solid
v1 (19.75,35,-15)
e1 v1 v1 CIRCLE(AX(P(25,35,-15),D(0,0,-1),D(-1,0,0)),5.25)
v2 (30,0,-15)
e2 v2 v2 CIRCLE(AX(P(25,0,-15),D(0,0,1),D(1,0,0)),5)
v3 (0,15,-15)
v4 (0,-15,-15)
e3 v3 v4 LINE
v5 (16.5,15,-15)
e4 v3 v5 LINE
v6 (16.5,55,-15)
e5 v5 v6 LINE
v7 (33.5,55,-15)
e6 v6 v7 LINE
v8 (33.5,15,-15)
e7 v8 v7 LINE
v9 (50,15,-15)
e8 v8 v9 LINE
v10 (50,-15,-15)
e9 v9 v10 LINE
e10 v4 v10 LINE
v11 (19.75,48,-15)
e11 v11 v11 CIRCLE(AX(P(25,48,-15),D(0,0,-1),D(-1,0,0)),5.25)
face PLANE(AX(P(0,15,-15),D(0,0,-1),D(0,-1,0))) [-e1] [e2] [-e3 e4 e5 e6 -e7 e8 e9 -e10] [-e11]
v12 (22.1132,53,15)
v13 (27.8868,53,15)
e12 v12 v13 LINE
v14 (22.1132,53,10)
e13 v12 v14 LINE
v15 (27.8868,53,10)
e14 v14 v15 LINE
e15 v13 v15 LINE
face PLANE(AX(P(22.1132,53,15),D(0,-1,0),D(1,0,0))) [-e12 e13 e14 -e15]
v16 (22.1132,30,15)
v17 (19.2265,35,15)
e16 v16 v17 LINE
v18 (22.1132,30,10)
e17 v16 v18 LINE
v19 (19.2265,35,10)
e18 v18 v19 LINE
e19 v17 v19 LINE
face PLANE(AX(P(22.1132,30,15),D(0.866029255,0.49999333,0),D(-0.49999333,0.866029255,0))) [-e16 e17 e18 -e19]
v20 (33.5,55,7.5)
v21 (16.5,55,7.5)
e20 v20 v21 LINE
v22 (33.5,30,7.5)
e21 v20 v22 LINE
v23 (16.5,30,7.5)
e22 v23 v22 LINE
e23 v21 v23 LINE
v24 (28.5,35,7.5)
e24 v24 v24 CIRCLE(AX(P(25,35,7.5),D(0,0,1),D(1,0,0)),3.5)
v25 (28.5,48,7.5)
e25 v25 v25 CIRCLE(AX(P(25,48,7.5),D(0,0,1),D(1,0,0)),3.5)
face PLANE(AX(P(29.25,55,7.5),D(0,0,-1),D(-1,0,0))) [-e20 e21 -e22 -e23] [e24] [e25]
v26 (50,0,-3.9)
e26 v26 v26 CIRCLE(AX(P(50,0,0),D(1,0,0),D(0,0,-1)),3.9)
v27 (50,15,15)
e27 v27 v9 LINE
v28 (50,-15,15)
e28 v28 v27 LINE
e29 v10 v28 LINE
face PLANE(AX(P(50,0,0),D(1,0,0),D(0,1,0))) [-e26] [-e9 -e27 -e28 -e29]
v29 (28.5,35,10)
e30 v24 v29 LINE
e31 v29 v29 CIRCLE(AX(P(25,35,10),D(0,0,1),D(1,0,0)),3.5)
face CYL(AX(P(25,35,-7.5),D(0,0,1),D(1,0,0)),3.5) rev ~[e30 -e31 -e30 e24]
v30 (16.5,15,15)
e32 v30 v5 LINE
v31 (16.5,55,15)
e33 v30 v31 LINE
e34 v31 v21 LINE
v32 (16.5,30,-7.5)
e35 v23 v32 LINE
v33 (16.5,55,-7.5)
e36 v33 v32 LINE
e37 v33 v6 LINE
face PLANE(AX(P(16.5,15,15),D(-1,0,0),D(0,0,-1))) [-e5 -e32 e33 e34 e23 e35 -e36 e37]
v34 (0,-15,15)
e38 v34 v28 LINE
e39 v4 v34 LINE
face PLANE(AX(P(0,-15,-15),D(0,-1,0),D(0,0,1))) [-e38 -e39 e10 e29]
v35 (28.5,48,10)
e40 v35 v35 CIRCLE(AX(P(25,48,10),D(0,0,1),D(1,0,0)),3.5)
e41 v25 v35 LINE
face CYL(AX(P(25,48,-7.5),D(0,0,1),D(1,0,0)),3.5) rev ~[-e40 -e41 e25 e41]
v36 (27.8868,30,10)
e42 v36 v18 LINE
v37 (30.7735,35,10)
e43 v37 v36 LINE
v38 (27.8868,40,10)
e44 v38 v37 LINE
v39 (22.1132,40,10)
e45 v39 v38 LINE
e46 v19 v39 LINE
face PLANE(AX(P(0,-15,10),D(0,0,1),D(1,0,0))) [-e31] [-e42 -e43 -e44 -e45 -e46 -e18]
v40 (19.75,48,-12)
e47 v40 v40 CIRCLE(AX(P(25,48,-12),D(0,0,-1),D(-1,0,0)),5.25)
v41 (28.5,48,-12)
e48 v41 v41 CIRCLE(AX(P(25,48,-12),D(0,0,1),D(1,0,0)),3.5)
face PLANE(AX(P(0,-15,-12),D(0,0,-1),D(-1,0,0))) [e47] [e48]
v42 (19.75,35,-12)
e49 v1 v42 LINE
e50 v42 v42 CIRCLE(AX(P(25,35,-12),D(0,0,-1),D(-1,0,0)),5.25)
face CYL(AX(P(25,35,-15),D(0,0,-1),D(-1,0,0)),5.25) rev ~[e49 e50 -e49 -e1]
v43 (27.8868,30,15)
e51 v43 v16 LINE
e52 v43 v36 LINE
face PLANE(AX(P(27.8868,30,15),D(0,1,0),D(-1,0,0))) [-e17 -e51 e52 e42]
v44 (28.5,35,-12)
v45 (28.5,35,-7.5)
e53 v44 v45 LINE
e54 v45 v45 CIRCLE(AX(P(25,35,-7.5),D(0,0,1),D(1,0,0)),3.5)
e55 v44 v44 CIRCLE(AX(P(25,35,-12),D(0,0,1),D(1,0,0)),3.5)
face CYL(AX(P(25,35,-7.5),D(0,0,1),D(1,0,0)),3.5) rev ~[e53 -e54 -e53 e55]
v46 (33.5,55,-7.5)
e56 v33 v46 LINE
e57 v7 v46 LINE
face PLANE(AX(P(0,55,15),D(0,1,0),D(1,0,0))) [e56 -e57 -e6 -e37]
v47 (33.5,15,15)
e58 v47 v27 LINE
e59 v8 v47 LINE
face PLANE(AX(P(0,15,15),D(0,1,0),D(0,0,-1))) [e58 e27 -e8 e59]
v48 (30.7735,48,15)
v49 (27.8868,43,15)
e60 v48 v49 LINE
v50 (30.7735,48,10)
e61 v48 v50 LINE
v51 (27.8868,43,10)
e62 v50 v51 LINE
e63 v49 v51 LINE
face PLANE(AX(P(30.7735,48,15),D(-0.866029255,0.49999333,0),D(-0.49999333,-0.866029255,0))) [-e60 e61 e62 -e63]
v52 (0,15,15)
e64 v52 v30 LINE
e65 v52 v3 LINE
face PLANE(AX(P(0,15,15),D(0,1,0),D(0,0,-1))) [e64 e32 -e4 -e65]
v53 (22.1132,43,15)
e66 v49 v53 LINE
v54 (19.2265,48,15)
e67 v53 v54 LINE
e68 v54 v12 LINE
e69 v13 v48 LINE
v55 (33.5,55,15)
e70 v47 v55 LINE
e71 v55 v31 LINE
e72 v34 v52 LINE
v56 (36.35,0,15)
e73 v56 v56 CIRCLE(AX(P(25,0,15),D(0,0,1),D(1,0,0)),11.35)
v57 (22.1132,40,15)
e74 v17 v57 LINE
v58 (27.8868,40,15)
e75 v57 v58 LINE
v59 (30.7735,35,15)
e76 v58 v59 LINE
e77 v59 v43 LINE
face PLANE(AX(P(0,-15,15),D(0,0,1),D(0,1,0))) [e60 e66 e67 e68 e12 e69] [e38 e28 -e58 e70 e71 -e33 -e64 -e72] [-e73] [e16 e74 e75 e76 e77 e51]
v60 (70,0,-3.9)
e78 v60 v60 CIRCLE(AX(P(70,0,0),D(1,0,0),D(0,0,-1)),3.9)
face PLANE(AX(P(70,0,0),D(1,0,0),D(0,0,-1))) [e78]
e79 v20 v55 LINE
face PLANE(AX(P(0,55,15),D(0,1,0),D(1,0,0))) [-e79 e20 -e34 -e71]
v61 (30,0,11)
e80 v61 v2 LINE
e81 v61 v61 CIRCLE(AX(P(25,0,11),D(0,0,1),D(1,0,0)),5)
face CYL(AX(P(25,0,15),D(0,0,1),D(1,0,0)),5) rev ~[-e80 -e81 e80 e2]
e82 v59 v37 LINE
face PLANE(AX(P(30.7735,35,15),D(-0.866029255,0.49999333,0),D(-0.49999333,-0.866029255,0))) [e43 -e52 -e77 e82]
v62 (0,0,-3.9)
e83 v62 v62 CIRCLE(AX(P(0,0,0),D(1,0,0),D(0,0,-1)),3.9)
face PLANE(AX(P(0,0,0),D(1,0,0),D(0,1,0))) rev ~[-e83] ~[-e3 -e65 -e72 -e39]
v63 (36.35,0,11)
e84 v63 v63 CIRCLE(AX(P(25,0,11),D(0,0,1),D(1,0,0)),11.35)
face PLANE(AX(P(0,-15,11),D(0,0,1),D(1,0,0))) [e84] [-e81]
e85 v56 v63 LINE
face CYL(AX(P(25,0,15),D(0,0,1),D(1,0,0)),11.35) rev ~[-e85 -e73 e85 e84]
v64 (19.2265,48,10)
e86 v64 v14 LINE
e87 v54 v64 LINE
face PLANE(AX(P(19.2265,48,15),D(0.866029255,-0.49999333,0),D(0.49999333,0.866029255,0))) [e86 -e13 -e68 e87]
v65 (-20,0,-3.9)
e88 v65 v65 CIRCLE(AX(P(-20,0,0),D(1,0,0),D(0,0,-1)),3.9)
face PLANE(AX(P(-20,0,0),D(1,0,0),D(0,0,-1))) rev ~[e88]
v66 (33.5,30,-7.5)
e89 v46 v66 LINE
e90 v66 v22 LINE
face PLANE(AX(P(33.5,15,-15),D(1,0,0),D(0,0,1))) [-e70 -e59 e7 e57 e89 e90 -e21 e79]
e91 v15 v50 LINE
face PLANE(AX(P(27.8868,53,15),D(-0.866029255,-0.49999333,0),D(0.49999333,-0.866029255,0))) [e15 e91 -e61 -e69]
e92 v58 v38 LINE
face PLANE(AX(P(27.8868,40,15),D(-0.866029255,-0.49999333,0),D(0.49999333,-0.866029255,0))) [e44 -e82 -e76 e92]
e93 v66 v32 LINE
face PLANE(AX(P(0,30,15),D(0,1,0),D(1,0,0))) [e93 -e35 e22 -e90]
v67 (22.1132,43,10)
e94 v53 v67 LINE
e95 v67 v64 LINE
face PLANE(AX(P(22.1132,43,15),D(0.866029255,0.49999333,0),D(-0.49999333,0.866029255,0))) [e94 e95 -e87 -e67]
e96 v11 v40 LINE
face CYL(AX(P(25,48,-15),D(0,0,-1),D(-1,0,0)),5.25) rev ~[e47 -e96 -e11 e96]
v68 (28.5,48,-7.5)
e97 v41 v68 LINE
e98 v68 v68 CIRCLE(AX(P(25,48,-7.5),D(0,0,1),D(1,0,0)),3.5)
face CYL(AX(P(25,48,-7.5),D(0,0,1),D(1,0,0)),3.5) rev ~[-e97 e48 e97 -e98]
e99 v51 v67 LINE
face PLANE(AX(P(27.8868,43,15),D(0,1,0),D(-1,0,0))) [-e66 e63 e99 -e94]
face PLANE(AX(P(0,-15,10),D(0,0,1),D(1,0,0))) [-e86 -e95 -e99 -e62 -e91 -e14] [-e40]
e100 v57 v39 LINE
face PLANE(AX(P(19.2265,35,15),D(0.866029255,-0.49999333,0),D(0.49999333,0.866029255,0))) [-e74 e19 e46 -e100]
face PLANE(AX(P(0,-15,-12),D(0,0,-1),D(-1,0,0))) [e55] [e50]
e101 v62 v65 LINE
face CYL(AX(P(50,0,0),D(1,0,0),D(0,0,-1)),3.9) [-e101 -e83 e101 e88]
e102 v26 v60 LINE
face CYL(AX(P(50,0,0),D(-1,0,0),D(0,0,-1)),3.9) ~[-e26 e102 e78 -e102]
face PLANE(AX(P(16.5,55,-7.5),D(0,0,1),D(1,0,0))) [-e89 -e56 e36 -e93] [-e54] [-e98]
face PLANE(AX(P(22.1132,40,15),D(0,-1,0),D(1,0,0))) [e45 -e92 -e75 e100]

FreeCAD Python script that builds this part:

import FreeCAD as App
import Part
import Sketcher

V = App.Vector
Q = App.Units.Quantity


def add_polygon(sketch, points):
    """Adds a closed chain of lines whose ends are joined by coincident constraints."""
    first, n = sketch.GeometryCount, len(points)
    for a, b in zip(points, points[1:] + points[:1]):
        sketch.addGeometry(Part.LineSegment(App.Vector(*a, 0), App.Vector(*b, 0)), False)
    for i in range(n):
        sketch.addConstraint(Sketcher.Constraint("Coincident", first + i, 2, first + (i + 1) % n, 1))

doc = App.newDocument("Part")
body = doc.addObject("PartDesign::Body", "Body")

# Sketch on YZ plane
sketch1 = body.newObject("Sketcher::SketchObject", "Sketch")
sketch1.AttachmentSupport = (doc.getObject("YZ_Plane"), [""])
sketch1.MapMode = "FlatFace"
add_polygon(sketch1, [(15, 15), (-15, 15), (-15, -15), (15, -15)])  # lines 0-3
sketch1.addConstraint([
    Sketcher.Constraint("Horizontal", 0),
    Sketcher.Constraint("Vertical", 1),
    Sketcher.Constraint("Horizontal", 2),
    Sketcher.Constraint("Vertical", 3),
    Sketcher.Constraint("Symmetric", 0, 2, 2, 2, -1, 1),
    Sketcher.Constraint("Equal", 2, 1),
    Sketcher.Constraint("DistanceX", 0, 2, 0, 1, Q("30 mm")),
])
pad1 = body.newObject("PartDesign::Pad", "Pad")
pad1.Profile = sketch1
pad1.Length = 50

# Sketch on YZ plane
sketch2 = body.newObject("Sketcher::SketchObject", "Sketch001")
sketch2.AttachmentSupport = (doc.getObject("YZ_Plane"), [""])
sketch2.MapMode = "FlatFace"
sketch2.AttachmentOffset = App.Placement(V(0, 0, 50), App.Rotation())
sketch2.addGeometry(Part.Circle(V(0, 0, 0), V(0, 0, 1), 3.9), False)
sketch2.addConstraint([
    Sketcher.Constraint("Coincident", 0, 3, -1, 1),
    Sketcher.Constraint("Diameter", 0, Q("7.8 mm")),
])
pad2 = body.newObject("PartDesign::Pad", "Pad001")
pad2.Profile = sketch2
pad2.Type = "TwoLengths"
pad2.Length = 20
pad2.Length2 = 70

# Sketch on XZ plane
sketch3 = body.newObject("Sketcher::SketchObject", "Sketch002")
sketch3.AttachmentSupport = (doc.getObject("XZ_Plane"), [""])
sketch3.MapMode = "FlatFace"
sketch3.AttachmentOffset = App.Placement(V(0, 0, -15), App.Rotation())
add_polygon(sketch3, [(34, -15), (16, -15), (16, 15), (34, 15)])  # lines 0-3
sketch3.addConstraint([
    Sketcher.Constraint("Horizontal", 0),
    Sketcher.Constraint("Vertical", 1),
    Sketcher.Constraint("Horizontal", 2),
    Sketcher.Constraint("Vertical", 3),
    Sketcher.Constraint("DistanceX", 0, 2, 0, 1, Q("17 mm")),
    Sketcher.Constraint("DistanceY", 1, 1, 1, 2, Q("30 mm")),
    Sketcher.Constraint("DistanceY", 0, 2, -1, 1, Q("15 mm")),
    Sketcher.Constraint("DistanceX", -1, 1, 0, 2, Q("16.5 mm")),
])
pad3 = body.newObject("PartDesign::Pad", "Pad002")
pad3.Profile = sketch3
pad3.Length = 40
pad3.Reversed = True

# Sketch on XY plane
sketch4 = body.newObject("Sketcher::SketchObject", "Sketch003")
sketch4.AttachmentSupport = (doc.getObject("XY_Plane"), [""])
sketch4.MapMode = "FlatFace"
sketch4.AttachmentOffset = App.Placement(V(0, 0, 15), App.Rotation())
sketch4.addGeometry(Part.Circle(V(25, 0, 0), V(0, 0, 1), 5), False)
sketch4.addConstraint([
    Sketcher.Constraint("PointOnObject", 0, 3, -1),
    Sketcher.Constraint("Diameter", 0, Q("10 mm")),
    Sketcher.Constraint("DistanceX", -1, 1, 0, 3, Q("25 mm")),
])
pocket1 = body.newObject("PartDesign::Pocket", "Pocket")
pocket1.Profile = sketch4
pocket1.Type = "ThroughAll"

# Sketch on XY plane
sketch5 = body.newObject("Sketcher::SketchObject", "Sketch004")
sketch5.AttachmentSupport = (doc.getObject("XY_Plane"), [""])
sketch5.MapMode = "FlatFace"
sketch5.AttachmentOffset = App.Placement(V(0, 0, 15), App.Rotation())
sketch5.addGeometry([
    Part.Circle(V(25, 0, 0), V(0, 0, 1), 11),
    Part.Circle(V(25, 0, 0), V(0, 0, 1), 5),
], False)
sketch5.addConstraint([
    Sketcher.Constraint("Coincident", 1, 3, 0, 3),
    Sketcher.Constraint("PointOnObject", 0, 3, -1),
    Sketcher.Constraint("Diameter", 0, Q("22.7 mm")),
    Sketcher.Constraint("Diameter", 1, Q("10 mm")),
    Sketcher.Constraint("DistanceX", -1, 1, 0, 3, Q("25 mm")),
])
pocket2 = body.newObject("PartDesign::Pocket", "Pocket001")
pocket2.Profile = sketch5
pocket2.Length = 4

# Sketch on XZ plane
sketch6 = body.newObject("Sketcher::SketchObject", "Sketch005")
sketch6.AttachmentSupport = (doc.getObject("XZ_Plane"), [""])
sketch6.MapMode = "FlatFace"
sketch6.AttachmentOffset = App.Placement(V(0, 0, -55), App.Rotation())
add_polygon(sketch6, [(16, -8), (16, 8), (34, 8), (34, -8)])  # lines 0-3
sketch6.addConstraint([
    Sketcher.Constraint("Vertical", 0),
    Sketcher.Constraint("Horizontal", 1),
    Sketcher.Constraint("Vertical", 2),
    Sketcher.Constraint("Horizontal", 3),
    Sketcher.Constraint("DistanceY", 0, 1, 0, 2, Q("15 mm")),
    Sketcher.Constraint("DistanceX", 1, 1, 1, 2, Q("17 mm")),
    Sketcher.Constraint("DistanceX", -1, 1, 0, 2, Q("16.5 mm")),
    Sketcher.Constraint("DistanceY", -1, 1, 0, 2, Q("7.5 mm")),
])
pocket3 = body.newObject("PartDesign::Pocket", "Pocket002")
pocket3.Profile = sketch6
pocket3.Length = 25
pocket3.Reversed = True

# Sketch on XY plane
sketch7 = body.newObject("Sketcher::SketchObject", "Sketch006")
sketch7.AttachmentSupport = (doc.getObject("XY_Plane"), [""])
sketch7.MapMode = "FlatFace"
sketch7.AttachmentOffset = App.Placement(V(0, 0, -7.5), App.Rotation())
sketch7.addGeometry([
    Part.Circle(V(25, 48, 0), V(0, 0, 1), 3.5),
    Part.Circle(V(25, 35, 0), V(0, 0, 1), 3.5),
], False)
sketch7.addConstraint([
    Sketcher.Constraint("Equal", 0, 1),
    Sketcher.Constraint("Vertical", 0, 3, 1, 3),
    Sketcher.Constraint("Diameter", 0, Q("7 mm")),
    Sketcher.Constraint("DistanceX", -1, 1, 0, 3, Q("25 mm")),
    Sketcher.Constraint("DistanceY", -1, 1, 0, 3, Q("48 mm")),
    Sketcher.Constraint("DistanceY", -1, 1, 1, 3, Q("35 mm")),
])
pocket4 = body.newObject("PartDesign::Pocket", "Pocket003")
pocket4.Profile = sketch7
pocket4.Length = 100
pocket4.Midplane = True

# Sketch on XY plane
sketch8 = body.newObject("Sketcher::SketchObject", "Sketch007")
sketch8.AttachmentSupport = (doc.getObject("XY_Plane"), [""])
sketch8.MapMode = "FlatFace"
sketch8.AttachmentOffset = App.Placement(V(0, 0, 15), App.Rotation())
add_polygon(sketch8, [(27.9, 43), (30.8, 48), (27.9, 53), (22.1, 53), (19.2, 48), (22.1, 43)])  # lines 0-5
sketch8.addGeometry(Part.Circle(V(25, 48, 0), V(0, 0, 1), 3.5), False)  # 6
add_polygon(sketch8, [(27.9, 30), (30.8, 35), (27.9, 40), (22.1, 40), (19.2, 35), (22.1, 30)])  # lines 7-12
sketch8.addGeometry(Part.Circle(V(25, 35, 0), V(0, 0, 1), 3.5), False)  # 13
sketch8.addConstraint([
    Sketcher.Constraint("Horizontal", 2),
    Sketcher.Constraint("Horizontal", 5),
    Sketcher.Constraint("Horizontal", 9),
    Sketcher.Constraint("Horizontal", 12),
    Sketcher.Constraint("Equal", 6, 13),
    Sketcher.Constraint("Parallel", 0, 3),
    Sketcher.Constraint("Parallel", 1, 4),
    Sketcher.Constraint("Parallel", 3, 7),
    Sketcher.Constraint("Parallel", 4, 8),
    Sketcher.Constraint("Parallel", 7, 10),
    Sketcher.Constraint("Parallel", 8, 11),
    Sketcher.Constraint("Horizontal", 6, 3, 0, 2),
    Sketcher.Constraint("Horizontal", 0, 2, 3, 2),
    Sketcher.Constraint("Horizontal", 13, 3, 7, 2),
    Sketcher.Constraint("Horizontal", 7, 2, 10, 2),
    Sketcher.Constraint("Vertical", 6, 3, 13, 3),
    Sketcher.Constraint("Vertical", 2, 2, 4, 2),
    Sketcher.Constraint("Vertical", 1, 2, 5, 2),
    Sketcher.Constraint("Vertical", 0, 2, 7, 2),
    Sketcher.Constraint("Vertical", 5, 2, 8, 2),
    Sketcher.Constraint("Vertical", 4, 2, 9, 2),
    Sketcher.Constraint("Vertical", 9, 2, 11, 2),
    Sketcher.Constraint("Diameter", 6, Q("7 mm")),
    Sketcher.Constraint("DistanceY", 4, 2, 2, 2, Q("10 mm")),
    Sketcher.Constraint("Angle", 0, Q("60.0004 deg")),
    Sketcher.Constraint("DistanceX", -1, 1, 6, 3, Q("25 mm")),
    Sketcher.Constraint("DistanceY", -1, 1, 6, 3, Q("48 mm")),
    Sketcher.Constraint("DistanceY", -1, 1, 13, 3, Q("35 mm")),
    Sketcher.Constraint("DistanceX", 2, 2, 2, 1, Q("5.7736 mm")),
    Sketcher.Constraint("DistanceX", -1, 1, 0, 2, Q("30.7735 mm")),
])
pocket5 = body.newObject("PartDesign::Pocket", "Pocket004")
pocket5.Profile = sketch8
pocket5.Length = 5

# Sketch on XY plane
sketch9 = body.newObject("Sketcher::SketchObject", "Sketch008")
sketch9.AttachmentSupport = (doc.getObject("XY_Plane"), [""])
sketch9.MapMode = "FlatFace"
sketch9.AttachmentOffset = App.Placement(V(0, 0, -15), App.Rotation())
sketch9.addGeometry([
    Part.Circle(V(25, 48, 0), V(0, 0, 1), 5),
    Part.Circle(V(25, 35, 0), V(0, 0, 1), 5),
], False)
sketch9.addConstraint([
    Sketcher.Constraint("Equal", 0, 1),
    Sketcher.Constraint("Vertical", 0, 3, 1, 3),
    Sketcher.Constraint("Diameter", 0, Q("10.5 mm")),
    Sketcher.Constraint("DistanceX", -1, 1, 0, 3, Q("25 mm")),
    Sketcher.Constraint("DistanceY", -1, 1, 0, 3, Q("48 mm")),
    Sketcher.Constraint("DistanceY", -1, 1, 1, 3, Q("35 mm")),
])
pocket6 = body.newObject("PartDesign::Pocket", "Pocket005")
pocket6.Profile = sketch9
pocket6.Length = 3
pocket6.Reversed = True

doc.recompute()
